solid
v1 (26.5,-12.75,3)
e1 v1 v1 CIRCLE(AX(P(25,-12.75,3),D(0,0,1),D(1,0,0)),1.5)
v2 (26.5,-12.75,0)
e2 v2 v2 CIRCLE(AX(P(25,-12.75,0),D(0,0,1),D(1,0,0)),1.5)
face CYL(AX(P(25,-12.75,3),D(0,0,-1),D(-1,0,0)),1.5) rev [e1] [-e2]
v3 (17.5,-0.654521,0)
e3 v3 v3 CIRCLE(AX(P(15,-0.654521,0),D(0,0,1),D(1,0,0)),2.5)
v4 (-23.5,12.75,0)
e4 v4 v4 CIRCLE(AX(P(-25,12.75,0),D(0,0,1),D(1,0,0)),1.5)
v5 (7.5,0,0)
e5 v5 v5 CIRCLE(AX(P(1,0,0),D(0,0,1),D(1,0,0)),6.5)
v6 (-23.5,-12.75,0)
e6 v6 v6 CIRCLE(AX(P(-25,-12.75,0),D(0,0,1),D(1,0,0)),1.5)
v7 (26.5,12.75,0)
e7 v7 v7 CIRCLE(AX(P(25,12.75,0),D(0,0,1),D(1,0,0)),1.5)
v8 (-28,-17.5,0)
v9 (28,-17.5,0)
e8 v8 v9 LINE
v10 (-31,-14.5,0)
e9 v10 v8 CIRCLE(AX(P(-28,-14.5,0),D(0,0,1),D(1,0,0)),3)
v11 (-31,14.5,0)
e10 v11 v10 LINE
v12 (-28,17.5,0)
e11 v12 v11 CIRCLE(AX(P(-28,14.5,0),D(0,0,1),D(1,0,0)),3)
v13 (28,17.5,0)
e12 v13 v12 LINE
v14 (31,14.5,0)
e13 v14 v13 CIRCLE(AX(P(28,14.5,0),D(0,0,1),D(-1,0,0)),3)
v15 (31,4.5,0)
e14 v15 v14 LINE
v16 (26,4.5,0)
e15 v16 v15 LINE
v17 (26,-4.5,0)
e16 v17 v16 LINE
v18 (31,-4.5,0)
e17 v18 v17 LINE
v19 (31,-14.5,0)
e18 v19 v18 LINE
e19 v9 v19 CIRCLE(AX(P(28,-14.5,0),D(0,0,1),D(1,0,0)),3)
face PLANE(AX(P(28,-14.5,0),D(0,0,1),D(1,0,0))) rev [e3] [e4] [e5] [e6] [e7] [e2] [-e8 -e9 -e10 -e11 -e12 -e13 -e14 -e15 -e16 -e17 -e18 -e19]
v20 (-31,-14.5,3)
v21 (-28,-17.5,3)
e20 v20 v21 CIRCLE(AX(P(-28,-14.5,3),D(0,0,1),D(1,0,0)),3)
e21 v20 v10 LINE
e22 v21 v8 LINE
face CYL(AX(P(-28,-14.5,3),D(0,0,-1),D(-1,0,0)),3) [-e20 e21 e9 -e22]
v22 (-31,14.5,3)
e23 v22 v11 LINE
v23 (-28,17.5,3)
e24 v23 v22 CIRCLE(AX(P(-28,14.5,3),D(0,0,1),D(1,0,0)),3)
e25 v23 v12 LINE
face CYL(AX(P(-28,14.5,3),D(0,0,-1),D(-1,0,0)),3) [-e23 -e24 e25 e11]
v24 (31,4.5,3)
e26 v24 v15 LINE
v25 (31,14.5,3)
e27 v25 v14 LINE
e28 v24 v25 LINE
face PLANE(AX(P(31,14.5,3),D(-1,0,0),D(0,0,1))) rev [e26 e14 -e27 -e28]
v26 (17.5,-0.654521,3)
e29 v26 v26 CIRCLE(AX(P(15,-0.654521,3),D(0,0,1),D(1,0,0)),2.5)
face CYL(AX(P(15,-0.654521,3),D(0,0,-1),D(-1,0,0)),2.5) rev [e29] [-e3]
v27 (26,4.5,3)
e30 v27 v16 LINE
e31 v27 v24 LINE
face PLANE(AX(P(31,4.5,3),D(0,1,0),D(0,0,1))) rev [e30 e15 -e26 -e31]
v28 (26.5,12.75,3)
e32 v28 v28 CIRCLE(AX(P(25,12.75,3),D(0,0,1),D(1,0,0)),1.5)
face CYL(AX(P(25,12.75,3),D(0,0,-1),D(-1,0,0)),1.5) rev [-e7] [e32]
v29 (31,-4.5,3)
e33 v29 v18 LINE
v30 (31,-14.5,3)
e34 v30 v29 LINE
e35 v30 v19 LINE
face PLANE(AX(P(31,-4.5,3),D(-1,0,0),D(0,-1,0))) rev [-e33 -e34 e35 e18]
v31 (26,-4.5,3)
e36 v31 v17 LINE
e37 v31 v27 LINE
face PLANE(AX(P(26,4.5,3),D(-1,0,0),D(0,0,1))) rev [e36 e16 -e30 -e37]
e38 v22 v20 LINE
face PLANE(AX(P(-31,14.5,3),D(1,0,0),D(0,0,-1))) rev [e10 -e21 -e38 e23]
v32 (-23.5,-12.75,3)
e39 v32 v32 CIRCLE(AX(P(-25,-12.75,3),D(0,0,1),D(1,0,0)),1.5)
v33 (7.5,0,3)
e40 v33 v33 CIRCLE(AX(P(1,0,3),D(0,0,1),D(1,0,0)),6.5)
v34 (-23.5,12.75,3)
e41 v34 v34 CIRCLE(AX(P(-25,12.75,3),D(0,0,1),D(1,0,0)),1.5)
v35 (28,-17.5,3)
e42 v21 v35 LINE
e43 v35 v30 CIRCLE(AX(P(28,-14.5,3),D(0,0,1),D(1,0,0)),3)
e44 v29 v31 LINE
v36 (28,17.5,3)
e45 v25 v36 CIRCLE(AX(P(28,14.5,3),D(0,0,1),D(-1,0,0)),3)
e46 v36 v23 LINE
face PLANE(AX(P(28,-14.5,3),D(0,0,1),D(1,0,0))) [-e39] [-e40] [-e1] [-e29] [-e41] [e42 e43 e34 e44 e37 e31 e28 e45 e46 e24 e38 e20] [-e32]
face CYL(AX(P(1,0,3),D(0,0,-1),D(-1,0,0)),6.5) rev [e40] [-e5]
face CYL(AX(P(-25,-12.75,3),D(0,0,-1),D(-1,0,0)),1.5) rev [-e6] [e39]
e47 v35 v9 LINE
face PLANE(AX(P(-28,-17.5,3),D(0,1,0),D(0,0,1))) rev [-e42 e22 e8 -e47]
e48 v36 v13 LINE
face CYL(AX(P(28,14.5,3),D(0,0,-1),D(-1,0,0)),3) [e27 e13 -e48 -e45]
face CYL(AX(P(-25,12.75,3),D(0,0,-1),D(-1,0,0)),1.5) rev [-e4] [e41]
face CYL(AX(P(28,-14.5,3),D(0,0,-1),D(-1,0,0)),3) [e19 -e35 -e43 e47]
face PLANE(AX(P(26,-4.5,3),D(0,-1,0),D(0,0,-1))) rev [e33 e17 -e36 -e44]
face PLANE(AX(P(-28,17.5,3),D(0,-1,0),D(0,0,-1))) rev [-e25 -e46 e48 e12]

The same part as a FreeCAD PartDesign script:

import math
import FreeCAD as App
import Part
import Sketcher

V = App.Vector
Q = App.Units.Quantity

doc = App.newDocument("Part")
body = doc.addObject("PartDesign::Body", "Body")

# Sketch on XY plane
sketch1 = body.newObject("Sketcher::SketchObject", "Sketch")
sketch1.AttachmentSupport = (doc.getObject("XY_Plane"), [""])
sketch1.MapMode = "FlatFace"
sketch1.addGeometry([
    Part.LineSegment(V(26, 4.5, 0), V(31, 4.5, 0)),  # 0
    Part.LineSegment(V(31, 4.5, 0), V(31, 14.5, 0)),  # 1
    Part.ArcOfCircle(Part.Circle(V(28, 14.5, 0), V(0, 0, 1), 3), math.radians(0), math.radians(90)),  # 2
    Part.LineSegment(V(28, 17.5, 0), V(-28, 17.5, 0)),  # 3
    Part.ArcOfCircle(Part.Circle(V(-28, 14.5, 0), V(0, 0, 1), 3), math.radians(90), math.radians(180)),  # 4
    Part.LineSegment(V(-31, 14.5, 0), V(-31, -14.5, 0)),  # 5
    Part.ArcOfCircle(Part.Circle(V(-28, -14.5, 0), V(0, 0, 1), 3), math.radians(180), math.radians(270)),  # 6
    Part.LineSegment(V(-28, -17.5, 0), V(28, -17.5, 0)),  # 7
    Part.ArcOfCircle(Part.Circle(V(28, -14.5, 0), V(0, 0, 1), 3), math.radians(-90), math.radians(0)),  # 8
    Part.LineSegment(V(31, -14.5, 0), V(31, -4.5, 0)),  # 9
    Part.LineSegment(V(31, -4.5, 0), V(26, -4.5, 0)),  # 10
    Part.LineSegment(V(26, -4.5, 0), V(26, 4.5, 0)),  # 11
    Part.Circle(V(25, -12.75, 0), V(0, 0, 1), 1.5),  # 12
    Part.Circle(V(15, -0.654521, 0), V(0, 0, 1), 2.5),  # 13
    Part.Circle(V(-25, -12.75, 0), V(0, 0, 1), 1.5),  # 14
    Part.Circle(V(1, 0, 0), V(0, 0, 1), 6.5),  # 15
    Part.Circle(V(25, 12.75, 0), V(0, 0, 1), 1.5),  # 16
    Part.Circle(V(-25, 12.75, 0), V(0, 0, 1), 1.5),  # 17
], False)
sketch1.addConstraint([
    Sketcher.Constraint("Coincident", 0, 2, 1, 1),
    Sketcher.Constraint("Tangent", 1, 2, 2, 1),
    Sketcher.Constraint("Tangent", 2, 2, 3, 1),
    Sketcher.Constraint("Tangent", 3, 2, 4, 1),
    Sketcher.Constraint("Tangent", 4, 2, 5, 1),
    Sketcher.Constraint("Tangent", 5, 2, 6, 1),
    Sketcher.Constraint("Tangent", 6, 2, 7, 1),
    Sketcher.Constraint("Tangent", 7, 2, 8, 1),
    Sketcher.Constraint("Tangent", 8, 2, 9, 1),
    Sketcher.Constraint("Coincident", 9, 2, 10, 1),
    Sketcher.Constraint("Coincident", 10, 2, 11, 1),
    Sketcher.Constraint("Coincident", 11, 2, 0, 1),
    Sketcher.Constraint("Horizontal", 0),
    Sketcher.Constraint("Vertical", 1),
    Sketcher.Constraint("Horizontal", 3),
    Sketcher.Constraint("Vertical", 5),
    Sketcher.Constraint("Horizontal", 7),
    Sketcher.Constraint("Vertical", 9),
    Sketcher.Constraint("Horizontal", 10),
    Sketcher.Constraint("Vertical", 11),
    Sketcher.Constraint("Equal", 2, 4),
    Sketcher.Constraint("Equal", 4, 6),
    Sketcher.Constraint("Equal", 6, 8),
    Sketcher.Constraint("Equal", 12, 14),
    Sketcher.Constraint("Equal", 14, 16),
    Sketcher.Constraint("Equal", 16, 17),
    Sketcher.Constraint("Symmetric", 2, 3, 6, 3, -1, 1),
    Sketcher.Constraint("Symmetric", 14, 3, 16, 3, -1, 1),
    Sketcher.Constraint("Symmetric", 12, 3, 17, 3, -1, 1),
    Sketcher.Constraint("Symmetric", 12, 3, 14, 3, -2),
    Sketcher.Constraint("Symmetric", 0, 2, 9, 2, -1),
    Sketcher.Constraint("PointOnObject", 15, 3, -1),
    Sketcher.Constraint("Diameter", 12, Q("3 mm")),
    Sketcher.Constraint("Diameter", 13, Q("5 mm")),
    Sketcher.Constraint("Diameter", 15, Q("13 mm")),
    Sketcher.Constraint("Radius", 2, Q("3 mm")),
    Sketcher.Constraint("DistanceX", 0, 1, 0, 2, Q("5 mm")),
    Sketcher.Constraint("DistanceX", 3, 2, 3, 1, Q("56 mm")),
    Sketcher.Constraint("DistanceY", 1, 1, 1, 2, Q("10 mm")),
    Sketcher.Constraint("DistanceY", 5, 2, 5, 1, Q("29 mm")),
    Sketcher.Constraint("DistanceX", -1, 1, 12, 3, Q("25 mm")),
    Sketcher.Constraint("DistanceX", -1, 1, 13, 3, Q("15 mm")),
    Sketcher.Constraint("DistanceX", -1, 1, 15, 3, Q("1 mm")),
    Sketcher.Constraint("DistanceY", 12, 3, 16, 3, Q("25.5 mm")),
    Sketcher.Constraint("DistanceY", 13, 3, -1, 1, Q("0.654521 mm")),
])
pad1 = body.newObject("PartDesign::Pad", "Pad")
pad1.Profile = sketch1
pad1.Length = 3

doc.recompute()
